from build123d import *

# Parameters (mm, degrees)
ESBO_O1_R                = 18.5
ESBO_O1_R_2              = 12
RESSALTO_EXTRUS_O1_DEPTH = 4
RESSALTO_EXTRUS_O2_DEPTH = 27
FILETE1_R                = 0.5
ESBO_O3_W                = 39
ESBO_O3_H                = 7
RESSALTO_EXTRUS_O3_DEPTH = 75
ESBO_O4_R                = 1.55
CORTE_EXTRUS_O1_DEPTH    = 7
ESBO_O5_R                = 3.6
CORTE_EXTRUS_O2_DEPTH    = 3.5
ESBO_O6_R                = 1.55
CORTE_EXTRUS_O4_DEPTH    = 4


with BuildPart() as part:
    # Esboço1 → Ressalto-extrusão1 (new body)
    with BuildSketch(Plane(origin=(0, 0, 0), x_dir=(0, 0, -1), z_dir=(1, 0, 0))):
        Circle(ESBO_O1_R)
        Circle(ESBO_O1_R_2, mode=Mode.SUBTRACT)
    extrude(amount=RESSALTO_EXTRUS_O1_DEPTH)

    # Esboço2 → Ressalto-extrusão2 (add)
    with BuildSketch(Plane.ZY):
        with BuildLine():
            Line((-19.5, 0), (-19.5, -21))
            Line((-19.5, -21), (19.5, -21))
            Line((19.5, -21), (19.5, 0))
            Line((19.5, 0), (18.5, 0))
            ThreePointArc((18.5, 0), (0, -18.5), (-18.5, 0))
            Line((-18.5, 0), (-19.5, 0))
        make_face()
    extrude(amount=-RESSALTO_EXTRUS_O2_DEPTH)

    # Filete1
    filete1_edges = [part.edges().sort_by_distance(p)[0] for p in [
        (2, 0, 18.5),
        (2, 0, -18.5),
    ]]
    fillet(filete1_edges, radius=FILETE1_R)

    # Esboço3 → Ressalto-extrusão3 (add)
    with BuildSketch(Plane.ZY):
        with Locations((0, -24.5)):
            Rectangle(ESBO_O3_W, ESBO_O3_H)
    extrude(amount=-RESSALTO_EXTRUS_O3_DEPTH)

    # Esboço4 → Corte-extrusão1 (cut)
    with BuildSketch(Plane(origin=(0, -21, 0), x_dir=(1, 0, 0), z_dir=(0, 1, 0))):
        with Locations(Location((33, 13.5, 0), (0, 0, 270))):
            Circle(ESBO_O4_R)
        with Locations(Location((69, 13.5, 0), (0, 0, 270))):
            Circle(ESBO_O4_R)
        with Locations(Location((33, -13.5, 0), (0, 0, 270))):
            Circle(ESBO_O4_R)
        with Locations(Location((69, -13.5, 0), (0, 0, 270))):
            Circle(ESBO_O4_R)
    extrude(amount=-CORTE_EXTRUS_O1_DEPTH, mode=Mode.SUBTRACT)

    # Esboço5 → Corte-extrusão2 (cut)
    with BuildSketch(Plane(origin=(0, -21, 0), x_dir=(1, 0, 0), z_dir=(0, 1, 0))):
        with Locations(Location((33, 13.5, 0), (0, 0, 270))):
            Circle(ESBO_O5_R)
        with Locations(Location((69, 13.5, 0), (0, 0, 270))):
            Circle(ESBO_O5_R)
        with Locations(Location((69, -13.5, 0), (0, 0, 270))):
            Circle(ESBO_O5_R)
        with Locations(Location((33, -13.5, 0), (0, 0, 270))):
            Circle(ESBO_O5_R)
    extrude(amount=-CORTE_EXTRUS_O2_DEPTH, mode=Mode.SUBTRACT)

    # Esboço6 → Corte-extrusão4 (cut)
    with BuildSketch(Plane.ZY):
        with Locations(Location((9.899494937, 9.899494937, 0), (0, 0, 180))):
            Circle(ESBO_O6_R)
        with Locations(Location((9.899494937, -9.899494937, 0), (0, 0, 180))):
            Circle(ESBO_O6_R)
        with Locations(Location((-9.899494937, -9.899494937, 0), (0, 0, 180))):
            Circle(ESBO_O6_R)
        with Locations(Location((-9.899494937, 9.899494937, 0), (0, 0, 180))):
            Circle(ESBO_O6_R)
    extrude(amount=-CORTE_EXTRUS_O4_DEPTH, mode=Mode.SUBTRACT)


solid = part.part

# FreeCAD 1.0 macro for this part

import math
import FreeCAD as App
import Part
import Sketcher

V = App.Vector
Q = App.Units.Quantity


def edges_at(feature, points):
    """Names of the edges that pass closest to the given points."""
    edges = feature.Shape.Edges
    near = lambda p: min(range(len(edges)), key=lambda i: edges[i].distToShape(Part.Vertex(*p))[0])
    return sorted({f"Edge{near(p) + 1}" for p in points})

doc = App.newDocument("Part")
body = doc.addObject("PartDesign::Body", "Body")

# Sketch on YZ plane
sketch1 = body.newObject("Sketcher::SketchObject", "Sketch")
sketch1.AttachmentSupport = (doc.getObject("YZ_Plane"), [""])
sketch1.MapMode = "FlatFace"
sketch1.addGeometry(Part.Circle(V(0, 0, 0), V(0, 0, 1), 18), False)
sketch1.addGeometry(Part.Circle(V(0, 0, 0), V(0, 0, 1), 12), False)
sketch1.addConstraint(Sketcher.Constraint("Coincident", 0, 3, -1, 1))
sketch1.addConstraint(Sketcher.Constraint("Coincident", 1, 3, -1, 1))
sketch1.addConstraint(Sketcher.Constraint("Diameter", 0, Q("37 mm")))
sketch1.addConstraint(Sketcher.Constraint("Diameter", 1, Q("24 mm")))
pad1 = body.newObject("PartDesign::Pad", "Pad")
pad1.Profile = sketch1
pad1.Length = 4

# Sketch on YZ plane
sketch2 = body.newObject("Sketcher::SketchObject", "Sketch001")
sketch2.AttachmentSupport = (doc.getObject("YZ_Plane"), [""])
sketch2.MapMode = "FlatFace"
sketch2.addGeometry(Part.LineSegment(V(0, -19.5, 0), V(-21, -19.5, 0)), False)
sketch2.addGeometry(Part.LineSegment(V(-21, -19.5, 0), V(-21, 19.5, 0)), False)
sketch2.addGeometry(Part.LineSegment(V(-21, 19.5, 0), V(0, 19.5, 0)), False)
sketch2.addGeometry(Part.LineSegment(V(0, 19.5, 0), V(0, 18.5, 0)), False)
sketch2.addGeometry(Part.ArcOfCircle(Part.Circle(V(0, 0, 0), V(0, 0, 1), 18.5), math.radians(90), math.radians(270)), False)
sketch2.addGeometry(Part.LineSegment(V(0, -18.5, 0), V(0, -19.5, 0)), False)
sketch2.addConstraint(Sketcher.Constraint("Coincident", 0, 2, 1, 1))
sketch2.addConstraint(Sketcher.Constraint("Coincident", 1, 2, 2, 1))
sketch2.addConstraint(Sketcher.Constraint("Coincident", 2, 2, 3, 1))
sketch2.addConstraint(Sketcher.Constraint("Coincident", 3, 2, 4, 1))
sketch2.addConstraint(Sketcher.Constraint("Coincident", 4, 2, 5, 1))
sketch2.addConstraint(Sketcher.Constraint("Coincident", 5, 2, 0, 1))
sketch2.addConstraint(Sketcher.Constraint("Horizontal", 0))
sketch2.addConstraint(Sketcher.Constraint("Vertical", 1))
sketch2.addConstraint(Sketcher.Constraint("Horizontal", 2))
sketch2.addConstraint(Sketcher.Constraint("Vertical", 3))
sketch2.addConstraint(Sketcher.Constraint("Vertical", 5))
sketch2.addConstraint(Sketcher.Constraint("Coincident", 4, 3, -1, 1))
sketch2.addConstraint(Sketcher.Constraint("Symmetric", 2, 2, 5, 2, -1, 1))
sketch2.addConstraint(Sketcher.Constraint("PointOnObject", 2, 2, -2))
sketch2.addConstraint(Sketcher.Constraint("Radius", 4, Q("18.5 mm")))
sketch2.addConstraint(Sketcher.Constraint("DistanceX", 0, 2, 0, 1, Q("21 mm")))
sketch2.addConstraint(Sketcher.Constraint("DistanceY", 1, 1, 1, 2, Q("39 mm")))
pad2 = body.newObject("PartDesign::Pad", "Pad001")
pad2.Profile = sketch2
pad2.Length = 27
doc.recompute()

fillet = body.newObject("PartDesign::Fillet", "Fillet")
fillet.Base = (pad2, edges_at(pad2, [(2, 0, 18.5), (2, 0, -18.5)]))
fillet.Radius = 0.5

# Sketch on YZ plane
sketch3 = body.newObject("Sketcher::SketchObject", "Sketch002")
sketch3.AttachmentSupport = (doc.getObject("YZ_Plane"), [""])
sketch3.MapMode = "FlatFace"
sketch3.addGeometry(Part.LineSegment(V(-21, -20, 0), V(-28, -20, 0)), False)
sketch3.addGeometry(Part.LineSegment(V(-28, -20, 0), V(-28, 20, 0)), False)
sketch3.addGeometry(Part.LineSegment(V(-28, 20, 0), V(-21, 20, 0)), False)
sketch3.addGeometry(Part.LineSegment(V(-21, 20, 0), V(-21, -20, 0)), False)
sketch3.addConstraint(Sketcher.Constraint("Coincident", 0, 2, 1, 1))
sketch3.addConstraint(Sketcher.Constraint("Coincident", 1, 2, 2, 1))
sketch3.addConstraint(Sketcher.Constraint("Coincident", 2, 2, 3, 1))
sketch3.addConstraint(Sketcher.Constraint("Coincident", 3, 2, 0, 1))
sketch3.addConstraint(Sketcher.Constraint("Horizontal", 0))
sketch3.addConstraint(Sketcher.Constraint("Vertical", 1))
sketch3.addConstraint(Sketcher.Constraint("Horizontal", 2))
sketch3.addConstraint(Sketcher.Constraint("Vertical", 3))
sketch3.addConstraint(Sketcher.Constraint("DistanceX", 0, 2, 0, 1, Q("7 mm")))
sketch3.addConstraint(Sketcher.Constraint("DistanceY", 1, 1, 1, 2, Q("39 mm")))
sketch3.addConstraint(Sketcher.Constraint("DistanceX", 0, 2, -1, 1, Q("28 mm")))
sketch3.addConstraint(Sketcher.Constraint("DistanceY", 0, 2, -1, 1, Q("19.5 mm")))
pad3 = body.newObject("PartDesign::Pad", "Pad002")
pad3.Profile = sketch3
pad3.Length = 75

# Sketch on XZ plane
sketch4 = body.newObject("Sketcher::SketchObject", "Sketch003")
sketch4.AttachmentSupport = (doc.getObject("XZ_Plane"), [""])
sketch4.MapMode = "FlatFace"
sketch4.AttachmentOffset = App.Placement(V(0, 0, 21), App.Rotation())
sketch4.addGeometry(Part.Circle(V(33, -13.5, 0), V(0, 0, 1), 1.6), False)
sketch4.addGeometry(Part.Circle(V(69, -13.5, 0), V(0, 0, 1), 1.6), False)
sketch4.addGeometry(Part.Circle(V(33, 13.5, 0), V(0, 0, 1), 1.6), False)
sketch4.addGeometry(Part.Circle(V(69, 13.5, 0), V(0, 0, 1), 1.6), False)
sketch4.addConstraint(Sketcher.Constraint("Equal", 0, 1))
sketch4.addConstraint(Sketcher.Constraint("Equal", 1, 2))
sketch4.addConstraint(Sketcher.Constraint("Equal", 2, 3))
sketch4.addConstraint(Sketcher.Constraint("Symmetric", 0, 3, 2, 3, -1))
sketch4.addConstraint(Sketcher.Constraint("Symmetric", 1, 3, 3, 3, -1))
sketch4.addConstraint(Sketcher.Constraint("Horizontal", 0, 3, 1, 3))
sketch4.addConstraint(Sketcher.Constraint("Diameter", 0, Q("3.1 mm")))
sketch4.addConstraint(Sketcher.Constraint("DistanceX", -1, 1, 0, 3, Q("33 mm")))
sketch4.addConstraint(Sketcher.Constraint("DistanceX", -1, 1, 1, 3, Q("69 mm")))
sketch4.addConstraint(Sketcher.Constraint("DistanceY", 0, 3, 2, 3, Q("27 mm")))
pocket1 = body.newObject("PartDesign::Pocket", "Pocket")
pocket1.Profile = sketch4
pocket1.Length = 7
pocket1.Reversed = True

# Sketch on XZ plane
sketch5 = body.newObject("Sketcher::SketchObject", "Sketch004")
sketch5.AttachmentSupport = (doc.getObject("XZ_Plane"), [""])
sketch5.MapMode = "FlatFace"
sketch5.AttachmentOffset = App.Placement(V(0, 0, 21), App.Rotation())
sketch5.addGeometry(Part.Circle(V(33, -13.5, 0), V(0, 0, 1), 3.6), False)
sketch5.addGeometry(Part.Circle(V(69, -13.5, 0), V(0, 0, 1), 3.6), False)
sketch5.addGeometry(Part.Circle(V(69, 13.5, 0), V(0, 0, 1), 3.6), False)
sketch5.addGeometry(Part.Circle(V(33, 13.5, 0), V(0, 0, 1), 3.6), False)
sketch5.addConstraint(Sketcher.Constraint("Equal", 0, 1))
sketch5.addConstraint(Sketcher.Constraint("Equal", 1, 2))
sketch5.addConstraint(Sketcher.Constraint("Equal", 2, 3))
sketch5.addConstraint(Sketcher.Constraint("Symmetric", 1, 3, 2, 3, -1))
sketch5.addConstraint(Sketcher.Constraint("Symmetric", 0, 3, 3, 3, -1))
sketch5.addConstraint(Sketcher.Constraint("Horizontal", 0, 3, 1, 3))
sketch5.addConstraint(Sketcher.Constraint("Diameter", 0, Q("7.2 mm")))
sketch5.addConstraint(Sketcher.Constraint("DistanceX", -1, 1, 0, 3, Q("33 mm")))
sketch5.addConstraint(Sketcher.Constraint("DistanceX", -1, 1, 1, 3, Q("69 mm")))
sketch5.addConstraint(Sketcher.Constraint("DistanceY", 1, 3, 2, 3, Q("27 mm")))
pocket2 = body.newObject("PartDesign::Pocket", "Pocket001")
pocket2.Profile = sketch5
pocket2.Length = 3.5
pocket2.Reversed = True

# Sketch on YZ plane
sketch6 = body.newObject("Sketcher::SketchObject", "Sketch005")
sketch6.AttachmentSupport = (doc.getObject("YZ_Plane"), [""])
sketch6.MapMode = "FlatFace"
sketch6.addGeometry(Part.Circle(V(9.9, 9.9, 0), V(0, 0, 1), 1.6), False)
sketch6.addGeometry(Part.Circle(V(-9.9, 9.9, 0), V(0, 0, 1), 1.6), False)
sketch6.addGeometry(Part.Circle(V(-9.9, -9.9, 0), V(0, 0, 1), 1.6), False)
sketch6.addGeometry(Part.Circle(V(9.9, -9.9, 0), V(0, 0, 1), 1.6), False)
sketch6.addConstraint(Sketcher.Constraint("Equal", 0, 1))
sketch6.addConstraint(Sketcher.Constraint("Equal", 1, 2))
sketch6.addConstraint(Sketcher.Constraint("Equal", 2, 3))
sketch6.addConstraint(Sketcher.Constraint("Symmetric", 0, 3, 2, 3, -1, 1))
sketch6.addConstraint(Sketcher.Constraint("Symmetric", 1, 3, 3, 3, -1, 1))
sketch6.addConstraint(Sketcher.Constraint("Symmetric", 0, 3, 1, 3, -2))
sketch6.addConstraint(Sketcher.Constraint("Diameter", 0, Q("3.1 mm")))
sketch6.addConstraint(Sketcher.Constraint("DistanceX", 1, 3, 0, 3, Q("19.79899 mm")))
sketch6.addConstraint(Sketcher.Constraint("DistanceY", 2, 3, 1, 3, Q("19.79899 mm")))
pocket3 = body.newObject("PartDesign::Pocket", "Pocket002")
pocket3.Profile = sketch6
pocket3.Length = 4
pocket3.Reversed = True

doc.recompute()
